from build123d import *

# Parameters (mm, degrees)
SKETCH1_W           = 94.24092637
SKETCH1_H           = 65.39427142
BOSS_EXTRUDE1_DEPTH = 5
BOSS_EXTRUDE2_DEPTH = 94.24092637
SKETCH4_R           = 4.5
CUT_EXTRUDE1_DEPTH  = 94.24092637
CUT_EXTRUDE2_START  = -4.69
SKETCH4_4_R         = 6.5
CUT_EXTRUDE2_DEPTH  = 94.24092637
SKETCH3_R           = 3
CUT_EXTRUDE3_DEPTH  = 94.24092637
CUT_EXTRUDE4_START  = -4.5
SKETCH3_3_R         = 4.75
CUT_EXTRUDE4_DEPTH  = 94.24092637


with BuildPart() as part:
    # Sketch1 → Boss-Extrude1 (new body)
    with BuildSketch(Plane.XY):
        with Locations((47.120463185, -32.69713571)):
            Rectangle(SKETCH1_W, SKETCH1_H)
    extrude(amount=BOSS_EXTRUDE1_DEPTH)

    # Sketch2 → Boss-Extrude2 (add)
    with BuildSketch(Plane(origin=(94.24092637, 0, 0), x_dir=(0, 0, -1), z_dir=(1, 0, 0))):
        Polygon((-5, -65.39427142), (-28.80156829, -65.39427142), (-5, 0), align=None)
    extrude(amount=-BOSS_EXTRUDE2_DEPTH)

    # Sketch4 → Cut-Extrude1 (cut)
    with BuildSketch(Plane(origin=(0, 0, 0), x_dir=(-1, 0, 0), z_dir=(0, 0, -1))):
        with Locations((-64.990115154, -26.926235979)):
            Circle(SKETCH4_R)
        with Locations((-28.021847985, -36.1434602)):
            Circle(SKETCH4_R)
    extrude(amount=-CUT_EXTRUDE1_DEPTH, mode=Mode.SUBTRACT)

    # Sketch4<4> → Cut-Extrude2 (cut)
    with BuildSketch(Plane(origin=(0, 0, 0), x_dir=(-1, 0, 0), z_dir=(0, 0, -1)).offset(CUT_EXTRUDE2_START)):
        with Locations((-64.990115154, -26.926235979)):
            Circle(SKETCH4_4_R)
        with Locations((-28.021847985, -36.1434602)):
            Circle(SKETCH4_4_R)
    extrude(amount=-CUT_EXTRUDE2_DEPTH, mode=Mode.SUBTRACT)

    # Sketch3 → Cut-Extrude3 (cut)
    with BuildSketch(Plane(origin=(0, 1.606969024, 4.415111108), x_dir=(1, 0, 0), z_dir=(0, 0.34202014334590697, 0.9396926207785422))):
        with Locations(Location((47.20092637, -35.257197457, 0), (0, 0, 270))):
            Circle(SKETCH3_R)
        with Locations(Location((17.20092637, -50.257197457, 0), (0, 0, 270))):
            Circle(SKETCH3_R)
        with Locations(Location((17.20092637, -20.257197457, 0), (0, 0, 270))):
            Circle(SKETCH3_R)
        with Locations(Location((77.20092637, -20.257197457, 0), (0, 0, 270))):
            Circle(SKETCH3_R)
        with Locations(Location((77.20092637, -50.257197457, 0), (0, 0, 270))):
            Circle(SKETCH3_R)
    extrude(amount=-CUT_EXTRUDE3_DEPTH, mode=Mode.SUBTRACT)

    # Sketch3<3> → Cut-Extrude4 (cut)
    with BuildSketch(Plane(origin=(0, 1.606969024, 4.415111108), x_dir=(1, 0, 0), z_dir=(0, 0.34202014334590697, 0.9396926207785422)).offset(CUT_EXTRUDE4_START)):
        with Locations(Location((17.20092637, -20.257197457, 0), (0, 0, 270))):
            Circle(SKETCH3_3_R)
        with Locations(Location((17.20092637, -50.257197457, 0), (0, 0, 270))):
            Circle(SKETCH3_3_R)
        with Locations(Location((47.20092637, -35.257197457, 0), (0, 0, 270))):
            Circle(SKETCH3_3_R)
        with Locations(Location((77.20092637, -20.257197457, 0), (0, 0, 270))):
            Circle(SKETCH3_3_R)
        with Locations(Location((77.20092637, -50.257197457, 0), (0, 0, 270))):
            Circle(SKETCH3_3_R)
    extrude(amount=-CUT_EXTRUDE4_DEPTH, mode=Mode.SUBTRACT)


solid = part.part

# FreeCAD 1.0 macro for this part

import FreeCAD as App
import Part
import Sketcher

V = App.Vector
Q = App.Units.Quantity

doc = App.newDocument("Part")
body = doc.addObject("PartDesign::Body", "Body")

sketch1 = body.newObject("Sketcher::SketchObject", "Sketch")
sketch1.AttachmentSupport = (doc.getObject("XY_Plane"), [""])
sketch1.MapMode = "FlatFace"
sketch1.addGeometry([
    Part.LineSegment(V(0, 0, 0), V(0, -65, 0)),
    Part.LineSegment(V(0, -65, 0), V(94, -65, 0)),
    Part.LineSegment(V(94, -65, 0), V(94, 0, 0)),
    Part.LineSegment(V(94, 0, 0), V(0, 0, 0)),
], False)
sketch1.addConstraint([
    Sketcher.Constraint("Coincident", 0, 2, 1, 1),
    Sketcher.Constraint("Coincident", 1, 2, 2, 1),
    Sketcher.Constraint("Coincident", 2, 2, 3, 1),
    Sketcher.Constraint("Coincident", 3, 2, 0, 1),
    Sketcher.Constraint("Vertical", 0),
    Sketcher.Constraint("Horizontal", 1),
    Sketcher.Constraint("Vertical", 2),
    Sketcher.Constraint("Horizontal", 3),
    Sketcher.Constraint("Coincident", 3, 2, -1, 1),
    Sketcher.Constraint("DistanceY", 0, 2, 0, 1, Q("65.394271 mm")),
    Sketcher.Constraint("DistanceX", 1, 1, 1, 2, Q("94.240926 mm")),
])
pad1 = body.newObject("PartDesign::Pad", "Pad")
pad1.Profile = sketch1
pad1.Length = 5

sketch2 = body.newObject("Sketcher::SketchObject", "Sketch001")
sketch2.AttachmentSupport = (doc.getObject("YZ_Plane"), [""])
sketch2.MapMode = "FlatFace"
sketch2.AttachmentOffset = App.Placement(V(0, 0, 94.240926), App.Rotation())
sketch2.addGeometry([
    Part.LineSegment(V(-65, 29, 0), V(-65, 5, 0)),
    Part.LineSegment(V(-65, 5, 0), V(0, 5, 0)),
    Part.LineSegment(V(0, 5, 0), V(-65, 29, 0)),
], False)
sketch2.addConstraint([
    Sketcher.Constraint("Coincident", 0, 2, 1, 1),
    Sketcher.Constraint("Coincident", 1, 2, 2, 1),
    Sketcher.Constraint("Coincident", 2, 2, 0, 1),
    Sketcher.Constraint("Vertical", 0),
    Sketcher.Constraint("Horizontal", 1),
    Sketcher.Constraint("PointOnObject", 1, 2, -2),
    Sketcher.Constraint("Angle", 2, Q("160 deg")),
    Sketcher.Constraint("DistanceY", -1, 1, 0, 2, Q("5 mm")),
    Sketcher.Constraint("DistanceX", 1, 1, 1, 2, Q("65.394271 mm")),
])
pad2 = body.newObject("PartDesign::Pad", "Pad001")
pad2.Profile = sketch2
pad2.Length = 94.240926
pad2.Reversed = True

sketch3 = body.newObject("Sketcher::SketchObject", "Sketch002")
sketch3.AttachmentSupport = (doc.getObject("XY_Plane"), [""])
sketch3.MapMode = "FlatFace"
sketch3.addGeometry([
    Part.Circle(V(65, -26.9, 0), V(0, 0, 1), 4.5),
    Part.Circle(V(28, -36.1, 0), V(0, 0, 1), 4.5),
], False)
sketch3.addConstraint([
    Sketcher.Constraint("Equal", 0, 1),
    Sketcher.Constraint("Diameter", 0, Q("9 mm")),
    Sketcher.Constraint("DistanceY", 1, 3, -1, 1, Q("36.14346 mm")),
    Sketcher.Constraint("DistanceX", -1, 1, 0, 3, Q("64.990115 mm")),
    Sketcher.Constraint("DistanceY", 0, 3, -1, 1, Q("26.926236 mm")),
    Sketcher.Constraint("DistanceX", -1, 1, 1, 3, Q("28.021848 mm")),
])
pocket1 = body.newObject("PartDesign::Pocket", "Pocket")
pocket1.Profile = sketch3
pocket1.Length = 94.240926
pocket1.Reversed = True

sketch4 = body.newObject("Sketcher::SketchObject", "Sketch003")
sketch4.AttachmentSupport = (doc.getObject("XY_Plane"), [""])
sketch4.MapMode = "FlatFace"
sketch4.AttachmentOffset = App.Placement(V(0, 0, 4.69), App.Rotation())
sketch4.addGeometry([
    Part.Circle(V(65, -27, 0), V(0, 0, 1), 6),
    Part.Circle(V(28, -36, 0), V(0, 0, 1), 6),
], False)
sketch4.addConstraint([
    Sketcher.Constraint("Equal", 0, 1),
    Sketcher.Constraint("Diameter", 0, Q("13 mm")),
    Sketcher.Constraint("DistanceY", 1, 3, -1, 1, Q("36.14346 mm")),
    Sketcher.Constraint("DistanceX", -1, 1, 0, 3, Q("64.990115 mm")),
    Sketcher.Constraint("DistanceY", 0, 3, -1, 1, Q("26.926236 mm")),
    Sketcher.Constraint("DistanceX", -1, 1, 1, 3, Q("28.021848 mm")),
])
pocket2 = body.newObject("PartDesign::Pocket", "Pocket001")
pocket2.Profile = sketch4
pocket2.Length = 94.240926
pocket2.Reversed = True

sketch5 = body.newObject("Sketcher::SketchObject", "Sketch004")
sketch5.Placement = App.Placement(V(0, 1.606969, 4.415111), App.Rotation(V(1, 0, 0), V(0, 0.939692621, -0.342020143), V(0, 0.342020143, 0.939692621), "ZXY"))
sketch5.addGeometry([
    Part.Circle(V(47.2, -35.3, 0), V(0, 0, 1), 3),
    Part.Circle(V(17.2, -50.3, 0), V(0, 0, 1), 3),
    Part.Circle(V(17.2, -20.3, 0), V(0, 0, 1), 3),
    Part.Circle(V(77.2, -20.3, 0), V(0, 0, 1), 3),
    Part.Circle(V(77.2, -50.3, 0), V(0, 0, 1), 3),
], False)
sketch5.addConstraint([
    Sketcher.Constraint("Equal", 0, 1),
    Sketcher.Constraint("Equal", 1, 2),
    Sketcher.Constraint("Equal", 2, 3),
    Sketcher.Constraint("Equal", 3, 4),
    Sketcher.Constraint("Horizontal", 2, 3, 3, 3),
    Sketcher.Constraint("Horizontal", 1, 3, 4, 3),
    Sketcher.Constraint("Vertical", 1, 3, 2, 3),
    Sketcher.Constraint("Vertical", 3, 3, 4, 3),
    Sketcher.Constraint("Diameter", 0, Q("6 mm")),
    Sketcher.Constraint("DistanceX", 1, 3, 0, 3, Q("30 mm")),
    Sketcher.Constraint("DistanceY", 1, 3, 0, 3, Q("15 mm")),
    Sketcher.Constraint("DistanceY", 1, 3, 2, 3, Q("30 mm")),
    Sketcher.Constraint("DistanceX", 0, 3, 3, 3, Q("30 mm")),
    Sketcher.Constraint("DistanceX", -1, 1, 0, 3, Q("47.200926 mm")),
    Sketcher.Constraint("DistanceY", 0, 3, -1, 1, Q("35.257197 mm")),
])
pocket3 = body.newObject("PartDesign::Pocket", "Pocket002")
pocket3.Profile = sketch5
pocket3.Length = 94.240926

sketch6 = body.newObject("Sketcher::SketchObject", "Sketch005")
sketch6.Placement = App.Placement(V(0, 0.067878, 0.186494), App.Rotation(V(1, 0, 0), V(0, 0.939692621, -0.342020143), V(0, 0.342020143, 0.939692621), "ZXY"))
sketch6.addGeometry([
    Part.Circle(V(17.2, -20.3, 0), V(0, 0, 1), 4.8),
    Part.Circle(V(17.2, -50.3, 0), V(0, 0, 1), 4.8),
    Part.Circle(V(47.2, -35.3, 0), V(0, 0, 1), 4.8),
    Part.Circle(V(77.2, -20.3, 0), V(0, 0, 1), 4.8),
    Part.Circle(V(77.2, -50.3, 0), V(0, 0, 1), 4.8),
], False)
sketch6.addConstraint([
    Sketcher.Constraint("Equal", 0, 1),
    Sketcher.Constraint("Equal", 1, 2),
    Sketcher.Constraint("Equal", 2, 3),
    Sketcher.Constraint("Equal", 3, 4),
    Sketcher.Constraint("Horizontal", 0, 3, 3, 3),
    Sketcher.Constraint("Horizontal", 1, 3, 4, 3),
    Sketcher.Constraint("Vertical", 0, 3, 1, 3),
    Sketcher.Constraint("Vertical", 3, 3, 4, 3),
    Sketcher.Constraint("Diameter", 0, Q("9.5 mm")),
    Sketcher.Constraint("DistanceY", 1, 3, 0, 3, Q("30 mm")),
    Sketcher.Constraint("DistanceX", 0, 3, 2, 3, Q("30 mm")),
    Sketcher.Constraint("DistanceY", 2, 3, 0, 3, Q("15 mm")),
    Sketcher.Constraint("DistanceX", 2, 3, 3, 3, Q("30 mm")),
    Sketcher.Constraint("DistanceX", -1, 1, 0, 3, Q("17.200926 mm")),
    Sketcher.Constraint("DistanceY", 0, 3, -1, 1, Q("20.257197 mm")),
])
pocket4 = body.newObject("PartDesign::Pocket", "Pocket003")
pocket4.Profile = sketch6
pocket4.Length = 94.240926

doc.recompute()
